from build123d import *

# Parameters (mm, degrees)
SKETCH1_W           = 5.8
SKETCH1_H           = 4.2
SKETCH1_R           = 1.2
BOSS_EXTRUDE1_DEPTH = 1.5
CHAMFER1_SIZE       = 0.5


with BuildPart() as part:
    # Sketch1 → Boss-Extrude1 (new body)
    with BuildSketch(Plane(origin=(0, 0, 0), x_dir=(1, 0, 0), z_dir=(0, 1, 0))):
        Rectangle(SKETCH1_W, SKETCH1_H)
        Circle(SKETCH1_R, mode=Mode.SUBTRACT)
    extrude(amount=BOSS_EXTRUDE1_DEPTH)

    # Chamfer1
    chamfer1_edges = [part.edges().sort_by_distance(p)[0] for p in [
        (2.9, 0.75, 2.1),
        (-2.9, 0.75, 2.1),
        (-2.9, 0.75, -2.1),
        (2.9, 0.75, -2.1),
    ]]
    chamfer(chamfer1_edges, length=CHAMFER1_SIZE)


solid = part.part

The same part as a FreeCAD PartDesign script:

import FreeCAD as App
import Part
import Sketcher


def edges_at(feature, points):
    """Names of the edges that pass closest to the given points."""
    edges = feature.Shape.Edges
    near = lambda p: min(range(len(edges)), key=lambda i: edges[i].distToShape(Part.Vertex(*p))[0])
    return sorted({f"Edge{near(p) + 1}" for p in points})

doc = App.newDocument("Part")
params = doc.addObject("Spreadsheet::Sheet", "Params")
for row, (alias, value) in enumerate([
    ("sketch1_diameter", "2.4 mm"),
    ("sketch1_width", "5.8 mm"),
    ("sketch1_height", "4.2 mm"),
    ("pad1_length", "1.5 mm"),
    ("chamfer_size", "0.5 mm"),
], start=1):
    params.set(f"A{row}", alias)
    params.set(f"B{row}", "=" + value)
    params.setAlias(f"B{row}", alias)

body = doc.addObject("PartDesign::Body", "Body")

# Sketch on XZ plane
sketch1 = body.newObject("Sketcher::SketchObject", "Sketch")
sketch1.AttachmentSupport = (doc.getObject("XZ_Plane"), [""])
sketch1.MapMode = "FlatFace"
sketch1.addGeometry([
    Part.LineSegment(App.Vector(-2.9, -2.1, 0), App.Vector(-2.9, 2.1, 0)),  # 0
    Part.LineSegment(App.Vector(-2.9, 2.1, 0), App.Vector(2.9, 2.1, 0)),  # 1
    Part.LineSegment(App.Vector(2.9, 2.1, 0), App.Vector(2.9, -2.1, 0)),  # 2
    Part.LineSegment(App.Vector(2.9, -2.1, 0), App.Vector(-2.9, -2.1, 0)),  # 3
    Part.Circle(App.Vector(0, 0, 0), App.Vector(0, 0, 1), 1.2),  # 4
], False)
sketch1.addConstraint([
    Sketcher.Constraint("Coincident", 0, 2, 1, 1),
    Sketcher.Constraint("Coincident", 1, 2, 2, 1),
    Sketcher.Constraint("Coincident", 2, 2, 3, 1),
    Sketcher.Constraint("Coincident", 3, 2, 0, 1),
    Sketcher.Constraint("Vertical", 0),
    Sketcher.Constraint("Horizontal", 1),
    Sketcher.Constraint("Vertical", 2),
    Sketcher.Constraint("Horizontal", 3),
    Sketcher.Constraint("Coincident", 4, 3, -1, 1),
    Sketcher.Constraint("Symmetric", 0, 2, 2, 2, -1, 1),
    Sketcher.Constraint("Diameter", 4, 2.4),
    Sketcher.Constraint("DistanceX", 1, 1, 1, 2, 5.8),
    Sketcher.Constraint("DistanceY", 0, 1, 0, 2, 4.2),
])
sketch1.setExpression("Constraints[10]", "Params.sketch1_diameter")
sketch1.setExpression("Constraints[11]", "Params.sketch1_width")
sketch1.setExpression("Constraints[12]", "Params.sketch1_height")
pad1 = body.newObject("PartDesign::Pad", "Pad")
pad1.Profile = sketch1
pad1.setExpression("Length", "Params.pad1_length")
pad1.Reversed = True
doc.recompute()

chamfer = body.newObject("PartDesign::Chamfer", "Chamfer")
chamfer.Base = (pad1, edges_at(pad1, [
    (2.9, 0.75, 2.1),
    (-2.9, 0.75, 2.1),
    (-2.9, 0.75, -2.1),
    (2.9, 0.75, -2.1),
]))
chamfer.setExpression("Size", "Params.chamfer_size")

doc.recompute()
